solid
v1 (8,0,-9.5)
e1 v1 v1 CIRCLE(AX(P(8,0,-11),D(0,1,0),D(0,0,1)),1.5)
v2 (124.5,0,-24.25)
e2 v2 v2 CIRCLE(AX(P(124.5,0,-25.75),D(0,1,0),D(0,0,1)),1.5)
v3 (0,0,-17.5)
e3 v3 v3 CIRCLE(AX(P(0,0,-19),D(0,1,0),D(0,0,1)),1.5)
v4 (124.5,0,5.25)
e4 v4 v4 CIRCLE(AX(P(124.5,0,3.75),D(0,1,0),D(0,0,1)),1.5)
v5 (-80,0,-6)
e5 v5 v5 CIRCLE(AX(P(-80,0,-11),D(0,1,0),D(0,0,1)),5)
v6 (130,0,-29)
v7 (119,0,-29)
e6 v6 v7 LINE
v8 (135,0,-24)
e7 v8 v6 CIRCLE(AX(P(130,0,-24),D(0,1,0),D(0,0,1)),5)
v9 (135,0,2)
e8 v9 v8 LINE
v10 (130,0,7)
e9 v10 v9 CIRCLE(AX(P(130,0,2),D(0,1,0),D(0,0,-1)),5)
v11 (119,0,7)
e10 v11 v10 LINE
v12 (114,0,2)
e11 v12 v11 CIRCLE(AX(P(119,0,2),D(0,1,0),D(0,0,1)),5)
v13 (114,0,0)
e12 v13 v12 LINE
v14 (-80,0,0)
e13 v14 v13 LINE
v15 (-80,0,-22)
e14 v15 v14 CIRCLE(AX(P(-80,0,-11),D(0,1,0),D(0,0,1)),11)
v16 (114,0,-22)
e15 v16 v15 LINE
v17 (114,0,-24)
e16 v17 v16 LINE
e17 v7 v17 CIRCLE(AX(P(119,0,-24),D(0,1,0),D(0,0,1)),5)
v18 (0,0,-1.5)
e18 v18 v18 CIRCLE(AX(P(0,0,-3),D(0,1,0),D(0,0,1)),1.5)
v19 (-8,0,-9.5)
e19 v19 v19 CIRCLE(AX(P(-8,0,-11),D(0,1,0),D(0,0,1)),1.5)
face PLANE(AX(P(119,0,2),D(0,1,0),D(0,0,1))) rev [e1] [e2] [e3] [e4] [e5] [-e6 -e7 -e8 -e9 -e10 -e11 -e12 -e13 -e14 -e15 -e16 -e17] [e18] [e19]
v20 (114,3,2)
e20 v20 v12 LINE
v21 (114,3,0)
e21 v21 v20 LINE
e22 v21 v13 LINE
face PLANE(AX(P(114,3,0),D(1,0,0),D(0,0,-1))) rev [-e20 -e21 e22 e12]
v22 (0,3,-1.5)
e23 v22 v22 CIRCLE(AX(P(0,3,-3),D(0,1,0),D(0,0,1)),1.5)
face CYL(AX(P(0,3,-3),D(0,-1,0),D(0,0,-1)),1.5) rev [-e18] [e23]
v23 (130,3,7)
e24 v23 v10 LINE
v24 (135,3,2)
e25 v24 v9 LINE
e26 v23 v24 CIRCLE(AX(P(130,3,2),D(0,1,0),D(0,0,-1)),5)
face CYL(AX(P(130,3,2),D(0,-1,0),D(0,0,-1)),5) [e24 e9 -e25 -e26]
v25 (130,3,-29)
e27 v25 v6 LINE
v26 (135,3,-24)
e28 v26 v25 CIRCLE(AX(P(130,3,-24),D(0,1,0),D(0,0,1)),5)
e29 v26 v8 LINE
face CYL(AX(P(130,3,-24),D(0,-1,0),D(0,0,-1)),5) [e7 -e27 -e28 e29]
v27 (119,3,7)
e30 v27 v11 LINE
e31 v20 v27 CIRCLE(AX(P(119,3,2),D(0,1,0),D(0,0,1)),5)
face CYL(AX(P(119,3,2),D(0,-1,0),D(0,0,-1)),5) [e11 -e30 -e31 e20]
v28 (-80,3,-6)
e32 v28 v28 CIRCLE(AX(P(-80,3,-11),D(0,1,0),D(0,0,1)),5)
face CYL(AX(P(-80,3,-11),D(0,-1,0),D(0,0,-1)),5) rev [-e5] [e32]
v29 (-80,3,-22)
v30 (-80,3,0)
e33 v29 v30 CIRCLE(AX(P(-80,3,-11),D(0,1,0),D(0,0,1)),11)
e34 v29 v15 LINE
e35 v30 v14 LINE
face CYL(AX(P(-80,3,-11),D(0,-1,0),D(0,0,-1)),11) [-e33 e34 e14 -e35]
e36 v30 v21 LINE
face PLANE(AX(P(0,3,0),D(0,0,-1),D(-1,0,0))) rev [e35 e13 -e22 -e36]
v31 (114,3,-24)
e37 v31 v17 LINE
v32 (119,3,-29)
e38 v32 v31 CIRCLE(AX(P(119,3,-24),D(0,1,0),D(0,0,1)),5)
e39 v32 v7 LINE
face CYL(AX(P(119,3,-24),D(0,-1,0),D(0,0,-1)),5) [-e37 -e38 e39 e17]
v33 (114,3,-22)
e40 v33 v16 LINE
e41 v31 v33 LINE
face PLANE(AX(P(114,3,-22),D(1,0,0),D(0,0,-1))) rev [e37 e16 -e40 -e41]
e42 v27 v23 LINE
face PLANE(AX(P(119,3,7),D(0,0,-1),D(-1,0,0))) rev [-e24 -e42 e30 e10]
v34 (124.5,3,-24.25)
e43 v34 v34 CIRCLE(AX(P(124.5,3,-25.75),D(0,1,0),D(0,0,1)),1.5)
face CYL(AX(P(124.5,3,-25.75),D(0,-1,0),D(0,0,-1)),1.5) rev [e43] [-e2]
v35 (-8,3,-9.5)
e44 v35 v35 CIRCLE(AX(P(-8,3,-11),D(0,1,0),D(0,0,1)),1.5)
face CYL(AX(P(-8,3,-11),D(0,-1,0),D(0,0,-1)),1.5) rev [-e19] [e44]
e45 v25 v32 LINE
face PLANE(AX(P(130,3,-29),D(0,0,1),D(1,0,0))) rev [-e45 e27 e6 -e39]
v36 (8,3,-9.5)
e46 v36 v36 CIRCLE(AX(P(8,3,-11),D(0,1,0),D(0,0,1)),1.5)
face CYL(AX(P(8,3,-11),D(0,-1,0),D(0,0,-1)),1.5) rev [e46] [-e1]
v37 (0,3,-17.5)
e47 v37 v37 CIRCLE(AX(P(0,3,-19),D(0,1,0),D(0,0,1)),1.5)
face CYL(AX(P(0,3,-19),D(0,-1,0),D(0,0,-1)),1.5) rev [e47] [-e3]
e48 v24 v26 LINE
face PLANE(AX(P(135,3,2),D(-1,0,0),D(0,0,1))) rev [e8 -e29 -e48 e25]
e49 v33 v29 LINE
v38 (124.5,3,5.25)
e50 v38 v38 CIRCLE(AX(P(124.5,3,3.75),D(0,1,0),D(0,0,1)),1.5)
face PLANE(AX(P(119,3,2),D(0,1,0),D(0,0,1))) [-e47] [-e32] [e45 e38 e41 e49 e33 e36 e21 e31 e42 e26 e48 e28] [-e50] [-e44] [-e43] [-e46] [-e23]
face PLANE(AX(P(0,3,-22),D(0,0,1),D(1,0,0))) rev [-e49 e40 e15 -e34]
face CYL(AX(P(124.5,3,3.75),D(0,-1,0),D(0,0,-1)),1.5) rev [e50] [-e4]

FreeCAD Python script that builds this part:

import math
import FreeCAD as App
import Part
import Sketcher
Q = App.Units.Quantity

doc = App.newDocument("Part")
body = doc.addObject("PartDesign::Body", "Body")

# Sketch on XZ plane
sketch1 = doc.addObject("Sketcher::SketchObject", "Sketch")
body.addObject(sketch1)
sketch1.AttachmentSupport = (doc.XZ_Plane, [""])
sketch1.MapMode = "FlatFace"
sketch1.addGeometry([
    Part.LineSegment(App.Vector(135, 2, 0), App.Vector(135, -24, 0)),  # 0
    Part.ArcOfCircle(Part.Circle(App.Vector(130, -24, 0), App.Vector(0, 0, 1), 5), math.radians(-90), math.radians(0)),  # 1
    Part.LineSegment(App.Vector(130, -29, 0), App.Vector(119, -29, 0)),  # 2
    Part.ArcOfCircle(Part.Circle(App.Vector(119, -24, 0), App.Vector(0, 0, 1), 5), math.radians(180), math.radians(270)),  # 3
    Part.LineSegment(App.Vector(114, -24, 0), App.Vector(114, -22, 0)),  # 4
    Part.LineSegment(App.Vector(114, -22, 0), App.Vector(-80, -22, 0)),  # 5
    Part.ArcOfCircle(Part.Circle(App.Vector(-80, -11, 0), App.Vector(0, 0, 1), 11), math.radians(90), math.radians(270)),  # 6
    Part.LineSegment(App.Vector(-80, 0, 0), App.Vector(114, 0, 0)),  # 7
    Part.LineSegment(App.Vector(114, 0, 0), App.Vector(114, 2, 0)),  # 8
    Part.ArcOfCircle(Part.Circle(App.Vector(119, 2, 0), App.Vector(0, 0, 1), 5), math.radians(90), math.radians(180)),  # 9
    Part.LineSegment(App.Vector(119, 7, 0), App.Vector(130, 7, 0)),  # 10
    Part.ArcOfCircle(Part.Circle(App.Vector(130, 2, 0), App.Vector(0, 0, 1), 5), math.radians(0), math.radians(90)),  # 11
    Part.Circle(App.Vector(0, -3, 0), App.Vector(0, 0, 1), 1.5),  # 12
    Part.Circle(App.Vector(124.5, 3.8, 0), App.Vector(0, 0, 1), 1.5),  # 13
    Part.Circle(App.Vector(-80, -11, 0), App.Vector(0, 0, 1), 5),  # 14
    Part.Circle(App.Vector(-8, -11, 0), App.Vector(0, 0, 1), 1.5),  # 15
    Part.Circle(App.Vector(8, -11, 0), App.Vector(0, 0, 1), 1.5),  # 16
    Part.Circle(App.Vector(0, -19, 0), App.Vector(0, 0, 1), 1.5),  # 17
    Part.Circle(App.Vector(124.5, -25.8, 0), App.Vector(0, 0, 1), 1.5),  # 18
], False)
sketch1.addConstraint([
    Sketcher.Constraint("Tangent", 0, 2, 1, 2),
    Sketcher.Constraint("Tangent", 1, 1, 2, 1),
    Sketcher.Constraint("Tangent", 2, 2, 3, 2),
    Sketcher.Constraint("Tangent", 3, 1, 4, 1),
    Sketcher.Constraint("Coincident", 4, 2, 5, 1),
    Sketcher.Constraint("Tangent", 5, 2, 6, 2),
    Sketcher.Constraint("Tangent", 6, 1, 7, 1),
    Sketcher.Constraint("Coincident", 7, 2, 8, 1),
    Sketcher.Constraint("Tangent", 8, 2, 9, 2),
    Sketcher.Constraint("Tangent", 9, 1, 10, 1),
    Sketcher.Constraint("Tangent", 10, 2, 11, 2),
    Sketcher.Constraint("Tangent", 11, 1, 0, 1),
    Sketcher.Constraint("Vertical", 0),
    Sketcher.Constraint("Horizontal", 2),
    Sketcher.Constraint("Vertical", 4),
    Sketcher.Constraint("Horizontal", 5),
    Sketcher.Constraint("Horizontal", 7),
    Sketcher.Constraint("Vertical", 8),
    Sketcher.Constraint("Horizontal", 10),
    Sketcher.Constraint("Coincident", 14, 3, 6, 3),
    Sketcher.Constraint("Equal", 1, 3),
    Sketcher.Constraint("Equal", 3, 9),
    Sketcher.Constraint("Equal", 9, 11),
    Sketcher.Constraint("Equal", 12, 13),
    Sketcher.Constraint("Equal", 11, 14),
    Sketcher.Constraint("Equal", 13, 15),
    Sketcher.Constraint("Equal", 15, 16),
    Sketcher.Constraint("Equal", 16, 17),
    Sketcher.Constraint("Equal", 17, 18),
    Sketcher.Constraint("Symmetric", 15, 3, 16, 3, -2),
    Sketcher.Constraint("PointOnObject", 12, 3, -2),
    Sketcher.Constraint("PointOnObject", 17, 3, -2),
    Sketcher.Constraint("PointOnObject", 6, 1, -1),
    Sketcher.Constraint("Horizontal", 14, 3, 15, 3),
    Sketcher.Constraint("Vertical", 3, 3, 9, 3),
    Sketcher.Constraint("Vertical", 13, 3, 18, 3),
    Sketcher.Constraint("Equal", 4, 8),
    Sketcher.Constraint("Diameter", 12, Q("3 mm")),
    Sketcher.Constraint("Diameter", 14, Q("10 mm")),
    Sketcher.Constraint("Radius", 6, Q("11 mm")),
    Sketcher.Constraint("DistanceX", 2, 2, 2, 1, Q("11 mm")),
    Sketcher.Constraint("DistanceX", 5, 2, 5, 1, Q("194 mm")),
    Sketcher.Constraint("DistanceY", 0, 2, 0, 1, Q("26 mm")),
    Sketcher.Constraint("DistanceX", -1, 1, 1, 3, Q("130 mm")),
    Sketcher.Constraint("DistanceY", 12, 3, -1, 1, Q("3 mm")),
    Sketcher.Constraint("DistanceX", 15, 3, -1, 1, Q("8 mm")),
    Sketcher.Constraint("DistanceY", 17, 3, -1, 1, Q("19 mm")),
    Sketcher.Constraint("DistanceX", -1, 1, 13, 3, Q("124.5 mm")),
    Sketcher.Constraint("DistanceY", 18, 3, 13, 3, Q("29.5 mm")),
    Sketcher.Constraint("DistanceY", -1, 1, 13, 3, Q("3.75 mm")),
])
pad1 = doc.addObject("PartDesign::Pad", "Pad")
body.addObject(pad1)
pad1.Profile = sketch1
pad1.Length = 3
pad1.Reversed = True

doc.recompute()
